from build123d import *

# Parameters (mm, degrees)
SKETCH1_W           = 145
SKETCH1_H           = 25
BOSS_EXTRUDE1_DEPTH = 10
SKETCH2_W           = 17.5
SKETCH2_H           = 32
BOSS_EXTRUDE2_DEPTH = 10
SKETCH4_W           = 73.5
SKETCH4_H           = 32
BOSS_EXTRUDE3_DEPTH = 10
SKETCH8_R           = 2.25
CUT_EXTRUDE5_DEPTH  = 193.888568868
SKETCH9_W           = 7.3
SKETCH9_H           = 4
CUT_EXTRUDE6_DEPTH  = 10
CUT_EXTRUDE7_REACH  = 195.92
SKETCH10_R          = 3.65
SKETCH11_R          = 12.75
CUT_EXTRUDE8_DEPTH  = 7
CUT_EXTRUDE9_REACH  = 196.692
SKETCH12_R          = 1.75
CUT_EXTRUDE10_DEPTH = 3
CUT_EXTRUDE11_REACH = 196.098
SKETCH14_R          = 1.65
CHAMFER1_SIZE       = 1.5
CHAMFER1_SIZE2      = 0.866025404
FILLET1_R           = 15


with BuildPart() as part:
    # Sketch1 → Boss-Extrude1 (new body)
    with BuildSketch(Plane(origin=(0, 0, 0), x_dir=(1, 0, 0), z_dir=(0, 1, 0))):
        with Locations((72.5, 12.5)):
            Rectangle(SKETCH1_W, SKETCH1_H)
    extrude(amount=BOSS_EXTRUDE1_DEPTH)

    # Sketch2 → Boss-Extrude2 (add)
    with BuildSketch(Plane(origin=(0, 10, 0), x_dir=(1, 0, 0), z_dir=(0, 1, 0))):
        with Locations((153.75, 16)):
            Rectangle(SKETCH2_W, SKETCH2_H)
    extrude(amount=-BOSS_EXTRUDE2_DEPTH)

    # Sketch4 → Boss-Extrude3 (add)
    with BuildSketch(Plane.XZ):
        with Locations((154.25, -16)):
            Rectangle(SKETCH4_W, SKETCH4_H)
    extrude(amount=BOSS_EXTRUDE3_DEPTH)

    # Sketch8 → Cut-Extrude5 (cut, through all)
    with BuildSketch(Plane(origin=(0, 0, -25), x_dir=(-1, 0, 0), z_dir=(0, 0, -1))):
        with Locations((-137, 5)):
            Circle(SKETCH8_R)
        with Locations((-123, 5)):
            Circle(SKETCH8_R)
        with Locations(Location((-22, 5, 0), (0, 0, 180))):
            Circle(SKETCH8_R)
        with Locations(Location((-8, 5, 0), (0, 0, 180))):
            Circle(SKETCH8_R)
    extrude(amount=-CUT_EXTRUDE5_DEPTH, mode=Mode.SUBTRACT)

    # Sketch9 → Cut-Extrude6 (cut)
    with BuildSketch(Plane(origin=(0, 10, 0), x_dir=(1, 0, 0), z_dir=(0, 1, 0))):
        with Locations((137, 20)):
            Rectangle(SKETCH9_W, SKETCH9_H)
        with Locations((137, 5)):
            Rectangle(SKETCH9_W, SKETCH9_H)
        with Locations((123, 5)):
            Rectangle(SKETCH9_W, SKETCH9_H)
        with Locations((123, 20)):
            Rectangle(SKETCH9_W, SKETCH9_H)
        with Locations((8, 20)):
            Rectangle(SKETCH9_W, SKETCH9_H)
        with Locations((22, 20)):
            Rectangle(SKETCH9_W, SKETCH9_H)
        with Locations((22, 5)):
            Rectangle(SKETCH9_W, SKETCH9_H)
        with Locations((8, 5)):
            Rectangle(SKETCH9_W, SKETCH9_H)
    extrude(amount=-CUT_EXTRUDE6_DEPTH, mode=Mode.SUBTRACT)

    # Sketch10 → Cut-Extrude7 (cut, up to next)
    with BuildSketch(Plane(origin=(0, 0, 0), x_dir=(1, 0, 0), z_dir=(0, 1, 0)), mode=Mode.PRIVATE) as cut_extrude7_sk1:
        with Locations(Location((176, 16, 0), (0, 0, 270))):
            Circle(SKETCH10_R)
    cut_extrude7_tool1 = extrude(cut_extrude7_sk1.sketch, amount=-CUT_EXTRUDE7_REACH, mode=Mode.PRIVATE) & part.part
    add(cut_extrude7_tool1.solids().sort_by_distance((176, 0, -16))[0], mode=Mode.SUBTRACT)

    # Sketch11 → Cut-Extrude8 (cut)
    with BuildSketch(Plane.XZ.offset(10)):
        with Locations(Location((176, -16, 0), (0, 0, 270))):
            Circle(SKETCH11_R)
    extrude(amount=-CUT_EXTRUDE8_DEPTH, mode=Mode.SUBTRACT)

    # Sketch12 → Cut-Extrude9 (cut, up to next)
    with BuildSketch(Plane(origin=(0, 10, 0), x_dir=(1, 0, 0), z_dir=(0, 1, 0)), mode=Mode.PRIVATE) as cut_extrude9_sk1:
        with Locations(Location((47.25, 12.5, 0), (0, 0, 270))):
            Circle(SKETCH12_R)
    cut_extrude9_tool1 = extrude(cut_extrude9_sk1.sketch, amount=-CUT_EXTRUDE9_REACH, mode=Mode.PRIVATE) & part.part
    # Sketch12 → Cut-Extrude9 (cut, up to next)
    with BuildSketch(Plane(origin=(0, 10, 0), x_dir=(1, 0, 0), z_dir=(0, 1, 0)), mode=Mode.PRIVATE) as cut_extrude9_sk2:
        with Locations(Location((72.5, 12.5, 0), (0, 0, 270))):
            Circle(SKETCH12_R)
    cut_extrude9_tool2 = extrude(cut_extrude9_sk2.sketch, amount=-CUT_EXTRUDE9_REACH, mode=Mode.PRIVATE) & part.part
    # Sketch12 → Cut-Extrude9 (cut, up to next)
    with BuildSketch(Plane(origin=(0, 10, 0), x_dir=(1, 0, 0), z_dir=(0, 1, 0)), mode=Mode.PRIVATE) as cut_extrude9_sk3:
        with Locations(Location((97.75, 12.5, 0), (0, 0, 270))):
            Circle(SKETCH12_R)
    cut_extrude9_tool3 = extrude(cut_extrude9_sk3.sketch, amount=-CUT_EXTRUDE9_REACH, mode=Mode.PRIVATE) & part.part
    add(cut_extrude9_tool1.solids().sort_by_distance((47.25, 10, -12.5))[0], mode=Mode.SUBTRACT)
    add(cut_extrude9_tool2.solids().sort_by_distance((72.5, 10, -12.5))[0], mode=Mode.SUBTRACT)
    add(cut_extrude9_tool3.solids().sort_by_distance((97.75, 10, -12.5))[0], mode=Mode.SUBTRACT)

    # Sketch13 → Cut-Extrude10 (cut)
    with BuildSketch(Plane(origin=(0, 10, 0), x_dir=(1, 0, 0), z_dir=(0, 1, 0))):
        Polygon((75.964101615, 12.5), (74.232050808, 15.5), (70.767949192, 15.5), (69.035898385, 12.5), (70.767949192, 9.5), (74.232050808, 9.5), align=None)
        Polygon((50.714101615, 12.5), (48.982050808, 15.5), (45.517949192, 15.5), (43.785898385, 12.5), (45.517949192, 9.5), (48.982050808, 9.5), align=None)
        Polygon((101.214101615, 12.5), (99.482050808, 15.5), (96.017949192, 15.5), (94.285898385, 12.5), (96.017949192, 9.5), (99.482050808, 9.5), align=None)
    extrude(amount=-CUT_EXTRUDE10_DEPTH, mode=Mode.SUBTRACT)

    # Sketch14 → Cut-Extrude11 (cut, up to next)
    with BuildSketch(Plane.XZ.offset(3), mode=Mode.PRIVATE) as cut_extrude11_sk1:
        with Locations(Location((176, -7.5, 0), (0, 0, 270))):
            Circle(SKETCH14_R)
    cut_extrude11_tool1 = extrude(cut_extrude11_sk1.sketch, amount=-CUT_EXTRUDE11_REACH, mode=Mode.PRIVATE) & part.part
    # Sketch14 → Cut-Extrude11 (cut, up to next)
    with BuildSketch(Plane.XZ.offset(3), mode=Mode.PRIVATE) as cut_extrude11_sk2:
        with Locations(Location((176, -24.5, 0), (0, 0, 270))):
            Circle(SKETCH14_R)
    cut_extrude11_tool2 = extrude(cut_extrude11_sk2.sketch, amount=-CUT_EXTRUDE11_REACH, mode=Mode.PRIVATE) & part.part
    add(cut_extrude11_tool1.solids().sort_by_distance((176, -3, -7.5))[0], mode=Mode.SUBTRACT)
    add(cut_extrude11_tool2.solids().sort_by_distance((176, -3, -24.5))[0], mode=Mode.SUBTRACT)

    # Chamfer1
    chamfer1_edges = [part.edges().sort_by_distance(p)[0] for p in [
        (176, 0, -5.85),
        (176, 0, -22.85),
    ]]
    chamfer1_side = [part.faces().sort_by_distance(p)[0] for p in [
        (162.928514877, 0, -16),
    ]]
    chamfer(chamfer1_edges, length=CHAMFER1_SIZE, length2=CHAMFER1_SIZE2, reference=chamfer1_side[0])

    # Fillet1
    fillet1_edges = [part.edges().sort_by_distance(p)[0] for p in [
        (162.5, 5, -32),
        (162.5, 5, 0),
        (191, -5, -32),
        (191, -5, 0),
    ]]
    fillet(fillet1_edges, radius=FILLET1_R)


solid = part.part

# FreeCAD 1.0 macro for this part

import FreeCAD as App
import Part
import Sketcher
from FreeCAD import Vector
Q = App.Units.Quantity


def edges_at(feature, points):
    """Names of the edges that pass closest to the given points."""
    edges = feature.Shape.Edges
    near = lambda p: min(range(len(edges)), key=lambda i: edges[i].distToShape(Part.Vertex(*p))[0])
    return sorted({f"Edge{near(p) + 1}" for p in points})


def add_polygon(sketch, points):
    """Adds a closed chain of lines whose ends are joined by coincident constraints."""
    first, n = sketch.GeometryCount, len(points)
    for a, b in zip(points, points[1:] + points[:1]):
        sketch.addGeometry(Part.LineSegment(App.Vector(*a, 0), App.Vector(*b, 0)), False)
    for i in range(n):
        sketch.addConstraint(Sketcher.Constraint("Coincident", first + i, 2, first + (i + 1) % n, 1))

doc = App.newDocument("Part")
body = doc.addObject("PartDesign::Body", "Body")

sketch1 = body.newObject("Sketcher::SketchObject", "Sketch")
sketch1.AttachmentSupport = (doc.getObject("XZ_Plane"), [""])
sketch1.MapMode = "FlatFace"
add_polygon(sketch1, [(0, -25), (0, 0), (145, 0), (145, -25)])
sketch1.addConstraint([
    Sketcher.Constraint("Vertical", 0),
    Sketcher.Constraint("Horizontal", 1),
    Sketcher.Constraint("Vertical", 2),
    Sketcher.Constraint("Horizontal", 3),
    Sketcher.Constraint("Coincident", 0, 2, -1, 1),
    Sketcher.Constraint("DistanceX", 1, 1, 1, 2, Q("145 mm")),
    Sketcher.Constraint("DistanceY", 0, 1, 0, 2, Q("25 mm")),
])
pad1 = body.newObject("PartDesign::Pad", "Pad")
pad1.Profile = sketch1
pad1.Length = 10
pad1.Reversed = True

sketch2 = body.newObject("Sketcher::SketchObject", "Sketch001")
sketch2.AttachmentSupport = (doc.getObject("XZ_Plane"), [""])
sketch2.MapMode = "FlatFace"
sketch2.AttachmentOffset = App.Placement(Vector(0, 0, -10), App.Rotation())
add_polygon(sketch2, [(145, -32), (145, 0), (162, 0), (162, -32)])
sketch2.addConstraint([
    Sketcher.Constraint("Vertical", 0),
    Sketcher.Constraint("Horizontal", 1),
    Sketcher.Constraint("Vertical", 2),
    Sketcher.Constraint("Horizontal", 3),
    Sketcher.Constraint("PointOnObject", 0, 2, -1),
    Sketcher.Constraint("DistanceY", 0, 1, 0, 2, Q("32 mm")),
    Sketcher.Constraint("DistanceX", 1, 1, 1, 2, Q("17.5 mm")),
    Sketcher.Constraint("DistanceX", -1, 1, 0, 2, Q("145 mm")),
])
pad2 = body.newObject("PartDesign::Pad", "Pad001")
pad2.Profile = sketch2
pad2.Length = 10

sketch3 = body.newObject("Sketcher::SketchObject", "Sketch002")
sketch3.AttachmentSupport = (doc.getObject("XZ_Plane"), [""])
sketch3.MapMode = "FlatFace"
add_polygon(sketch3, [(118, 0), (118, -32), (191, -32), (191, 0)])
sketch3.addConstraint([
    Sketcher.Constraint("Vertical", 0),
    Sketcher.Constraint("Horizontal", 1),
    Sketcher.Constraint("Vertical", 2),
    Sketcher.Constraint("Horizontal", 3),
    Sketcher.Constraint("PointOnObject", 2, 2, -1),
    Sketcher.Constraint("DistanceY", 0, 2, 0, 1, Q("32 mm")),
    Sketcher.Constraint("DistanceX", 1, 1, 1, 2, Q("73.5 mm")),
    Sketcher.Constraint("DistanceX", -1, 1, 1, 2, Q("191 mm")),
])
pad3 = body.newObject("PartDesign::Pad", "Pad002")
pad3.Profile = sketch3
pad3.Length = 10

sketch4 = body.newObject("Sketcher::SketchObject", "Sketch003")
sketch4.AttachmentSupport = (doc.getObject("XY_Plane"), [""])
sketch4.MapMode = "FlatFace"
sketch4.AttachmentOffset = App.Placement(Vector(0, 0, -25), App.Rotation())
sketch4.addGeometry([
    Part.Circle(Vector(137, 5, 0), Vector(0, 0, 1), 2.2),
    Part.Circle(Vector(123, 5, 0), Vector(0, 0, 1), 2.2),
    Part.Circle(Vector(22, 5, 0), Vector(0, 0, 1), 2.2),
    Part.Circle(Vector(8, 5, 0), Vector(0, 0, 1), 2.2),
], False)
sketch4.addConstraint([
    Sketcher.Constraint("Equal", 0, 1),
    Sketcher.Constraint("Equal", 1, 2),
    Sketcher.Constraint("Equal", 2, 3),
    Sketcher.Constraint("Horizontal", 0, 3, 1, 3),
    Sketcher.Constraint("Horizontal", 1, 3, 2, 3),
    Sketcher.Constraint("Horizontal", 2, 3, 3, 3),
    Sketcher.Constraint("Diameter", 0, Q("4.5 mm")),
    Sketcher.Constraint("DistanceX", -1, 1, 0, 3, Q("137 mm")),
    Sketcher.Constraint("DistanceY", -1, 1, 0, 3, Q("5 mm")),
    Sketcher.Constraint("DistanceX", -1, 1, 1, 3, Q("123 mm")),
    Sketcher.Constraint("DistanceX", -1, 1, 2, 3, Q("22 mm")),
    Sketcher.Constraint("DistanceX", -1, 1, 3, 3, Q("8 mm")),
])
pocket1 = body.newObject("PartDesign::Pocket", "Pocket")
pocket1.Profile = sketch4
pocket1.Type = "ThroughAll"
pocket1.Reversed = True

sketch5 = body.newObject("Sketcher::SketchObject", "Sketch004")
sketch5.AttachmentSupport = (doc.getObject("XZ_Plane"), [""])
sketch5.MapMode = "FlatFace"
sketch5.AttachmentOffset = App.Placement(Vector(0, 0, -10), App.Rotation())
add_polygon(sketch5, [(133.3, -22), (133.3, -18), (140.7, -18), (140.7, -22)])
add_polygon(sketch5, [(133.3, -7), (133.3, -3), (140.7, -3), (140.7, -7)])
add_polygon(sketch5, [(119.3, -7), (119.3, -3), (126.7, -3), (126.7, -7)])
add_polygon(sketch5, [(119.3, -22), (119.3, -18), (126.7, -18), (126.7, -22)])
add_polygon(sketch5, [(4.3, -22), (4.3, -18), (11.7, -18), (11.7, -22)])
add_polygon(sketch5, [(18.4, -22), (18.4, -18), (25.6, -18), (25.6, -22)])
add_polygon(sketch5, [(18.4, -7), (18.4, -3), (25.6, -3), (25.6, -7)])
add_polygon(sketch5, [(4.3, -7), (4.3, -3), (11.7, -3), (11.7, -7)])
sketch5.addConstraint([
    Sketcher.Constraint("Vertical", 0),
    Sketcher.Constraint("Horizontal", 1),
    Sketcher.Constraint("Vertical", 2),
    Sketcher.Constraint("Horizontal", 3),
    Sketcher.Constraint("Vertical", 4),
    Sketcher.Constraint("Horizontal", 5),
    Sketcher.Constraint("Vertical", 6),
    Sketcher.Constraint("Horizontal", 7),
    Sketcher.Constraint("Vertical", 8),
    Sketcher.Constraint("Horizontal", 9),
    Sketcher.Constraint("Vertical", 10),
    Sketcher.Constraint("Horizontal", 11),
    Sketcher.Constraint("Vertical", 12),
    Sketcher.Constraint("Horizontal", 13),
    Sketcher.Constraint("Vertical", 14),
    Sketcher.Constraint("Horizontal", 15),
    Sketcher.Constraint("Vertical", 16),
    Sketcher.Constraint("Horizontal", 17),
    Sketcher.Constraint("Vertical", 18),
    Sketcher.Constraint("Horizontal", 19),
    Sketcher.Constraint("Vertical", 20),
    Sketcher.Constraint("Horizontal", 21),
    Sketcher.Constraint("Vertical", 22),
    Sketcher.Constraint("Horizontal", 23),
    Sketcher.Constraint("Vertical", 24),
    Sketcher.Constraint("Horizontal", 25),
    Sketcher.Constraint("Vertical", 26),
    Sketcher.Constraint("Horizontal", 27),
    Sketcher.Constraint("Vertical", 28),
    Sketcher.Constraint("Horizontal", 29),
    Sketcher.Constraint("Vertical", 30),
    Sketcher.Constraint("Horizontal", 31),
    Sketcher.Constraint("Horizontal", 5, 2, 8, 2),
    Sketcher.Constraint("Horizontal", 7, 2, 10, 2),
    Sketcher.Constraint("Horizontal", 1, 2, 12, 2),
    Sketcher.Constraint("Horizontal", 3, 2, 14, 2),
    Sketcher.Constraint("Horizontal", 13, 2, 16, 2),
    Sketcher.Constraint("Horizontal", 15, 2, 18, 2),
    Sketcher.Constraint("Horizontal", 17, 2, 20, 2),
    Sketcher.Constraint("Horizontal", 19, 2, 22, 2),
    Sketcher.Constraint("Horizontal", 9, 2, 24, 2),
    Sketcher.Constraint("Horizontal", 11, 2, 26, 2),
    Sketcher.Constraint("Horizontal", 25, 2, 28, 2),
    Sketcher.Constraint("Horizontal", 27, 2, 30, 2),
    Sketcher.Constraint("Vertical", 3, 2, 4, 2),
    Sketcher.Constraint("Vertical", 2, 2, 5, 2),
    Sketcher.Constraint("Vertical", 11, 2, 12, 2),
    Sketcher.Constraint("Vertical", 10, 2, 13, 2),
    Sketcher.Constraint("Vertical", 23, 2, 24, 2),
    Sketcher.Constraint("Vertical", 22, 2, 25, 2),
    Sketcher.Constraint("Vertical", 19, 2, 28, 2),
    Sketcher.Constraint("Vertical", 18, 2, 29, 2),
    Sketcher.Constraint("Equal", 7, 9),
    Sketcher.Constraint("Equal", 15, 17),
    Sketcher.Constraint("Equal", 19, 21),
    Sketcher.Constraint("Equal", 2, 4),
    Sketcher.Constraint("DistanceY", 0, 1, 0, 2, Q("4 mm")),
    Sketcher.Constraint("DistanceX", 1, 1, 1, 2, Q("7.3 mm")),
    Sketcher.Constraint("DistanceY", 0, 2, -1, 1, Q("18 mm")),
    Sketcher.Constraint("DistanceY", 4, 2, -1, 1, Q("3 mm")),
    Sketcher.Constraint("DistanceX", 8, 2, 4, 2, Q("14 mm")),
    Sketcher.Constraint("DistanceX", 16, 2, 12, 2, Q("115 mm")),
    Sketcher.Constraint("DistanceX", 16, 2, 20, 2, Q("14 mm")),
    Sketcher.Constraint("DistanceX", -1, 1, 0, 2, Q("133.35 mm")),
])
pocket2 = body.newObject("PartDesign::Pocket", "Pocket001")
pocket2.Profile = sketch5
pocket2.Length = 10
pocket2.Reversed = True

sketch6 = body.newObject("Sketcher::SketchObject", "Sketch005")
sketch6.AttachmentSupport = (doc.getObject("XZ_Plane"), [""])
sketch6.MapMode = "FlatFace"
sketch6.addGeometry(Part.Circle(Vector(176, -16, 0), Vector(0, 0, 1), 3.6), False)
sketch6.addConstraint([
    Sketcher.Constraint("Diameter", 0, Q("7.3 mm")),
    Sketcher.Constraint("DistanceX", -1, 1, 0, 3, Q("176 mm")),
    Sketcher.Constraint("DistanceY", 0, 3, -1, 1, Q("16 mm")),
])
pocket3 = body.newObject("PartDesign::Pocket", "Pocket002")
pocket3.Profile = sketch6
pocket3.Type = "UpToFirst"
pocket3.Reversed = True

sketch7 = body.newObject("Sketcher::SketchObject", "Sketch006")
sketch7.AttachmentSupport = (doc.getObject("XZ_Plane"), [""])
sketch7.MapMode = "FlatFace"
sketch7.AttachmentOffset = App.Placement(Vector(0, 0, 10), App.Rotation())
sketch7.addGeometry(Part.Circle(Vector(176, -16, 0), Vector(0, 0, 1), 13), False)
sketch7.addConstraint([
    Sketcher.Constraint("Diameter", 0, Q("25.5 mm")),
    Sketcher.Constraint("DistanceX", -1, 1, 0, 3, Q("176 mm")),
    Sketcher.Constraint("DistanceY", 0, 3, -1, 1, Q("16 mm")),
])
pocket4 = body.newObject("PartDesign::Pocket", "Pocket003")
pocket4.Profile = sketch7
pocket4.Length = 7

sketch8 = body.newObject("Sketcher::SketchObject", "Sketch007")
sketch8.AttachmentSupport = (doc.getObject("XZ_Plane"), [""])
sketch8.MapMode = "FlatFace"
sketch8.AttachmentOffset = App.Placement(Vector(0, 0, -10), App.Rotation())
sketch8.addGeometry(Part.Circle(Vector(47.2, -12.5, 0), Vector(0, 0, 1), 1.8), False)
sketch8.addConstraint([
    Sketcher.Constraint("Diameter", 0, Q("3.5 mm")),
    Sketcher.Constraint("DistanceY", 0, 3, -1, 1, Q("12.5 mm")),
    Sketcher.Constraint("DistanceX", -1, 1, 0, 3, Q("47.25 mm")),
])
pocket5 = body.newObject("PartDesign::Pocket", "Pocket004")
pocket5.Profile = sketch8
pocket5.Type = "UpToFirst"
pocket5.Reversed = True

sketch9 = body.newObject("Sketcher::SketchObject", "Sketch008")
sketch9.AttachmentSupport = (doc.getObject("XZ_Plane"), [""])
sketch9.MapMode = "FlatFace"
sketch9.AttachmentOffset = App.Placement(Vector(0, 0, -10), App.Rotation())
sketch9.addGeometry(Part.Circle(Vector(72.5, -12.5, 0), Vector(0, 0, 1), 1.8), False)
sketch9.addConstraint([
    Sketcher.Constraint("Diameter", 0, Q("3.5 mm")),
    Sketcher.Constraint("DistanceX", -1, 1, 0, 3, Q("72.5 mm")),
    Sketcher.Constraint("DistanceY", 0, 3, -1, 1, Q("12.5 mm")),
])
pocket6 = body.newObject("PartDesign::Pocket", "Pocket005")
pocket6.Profile = sketch9
pocket6.Type = "UpToFirst"
pocket6.Reversed = True

sketch10 = body.newObject("Sketcher::SketchObject", "Sketch009")
sketch10.AttachmentSupport = (doc.getObject("XZ_Plane"), [""])
sketch10.MapMode = "FlatFace"
sketch10.AttachmentOffset = App.Placement(Vector(0, 0, -10), App.Rotation())
sketch10.addGeometry(Part.Circle(Vector(97.8, -12.5, 0), Vector(0, 0, 1), 1.8), False)
sketch10.addConstraint([
    Sketcher.Constraint("Diameter", 0, Q("3.5 mm")),
    Sketcher.Constraint("DistanceY", 0, 3, -1, 1, Q("12.5 mm")),
    Sketcher.Constraint("DistanceX", -1, 1, 0, 3, Q("97.75 mm")),
])
pocket7 = body.newObject("PartDesign::Pocket", "Pocket006")
pocket7.Profile = sketch10
pocket7.Type = "UpToFirst"
pocket7.Reversed = True

sketch11 = body.newObject("Sketcher::SketchObject", "Sketch010")
sketch11.AttachmentSupport = (doc.getObject("XZ_Plane"), [""])
sketch11.MapMode = "FlatFace"
sketch11.AttachmentOffset = App.Placement(Vector(0, 0, -10), App.Rotation())
add_polygon(sketch11, [(76, -12.5), (74.2, -15.5), (70.8, -15.5), (69, -12.5), (70.8, -9.5), (74.2, -9.5)])
add_polygon(sketch11, [(50.7, -12.5), (49, -15.5), (45.5, -15.5), (43.8, -12.5), (45.5, -9.5), (49, -9.5)])
add_polygon(sketch11, [(101.2, -12.5), (99.5, -15.5), (96, -15.5), (94.3, -12.5), (96, -9.5), (99.5, -9.5)])
sketch11.addConstraint([
    Sketcher.Constraint("Horizontal", 1),
    Sketcher.Constraint("Horizontal", 4),
    Sketcher.Constraint("Horizontal", 7),
    Sketcher.Constraint("Horizontal", 10),
    Sketcher.Constraint("Horizontal", 13),
    Sketcher.Constraint("Horizontal", 16),
    Sketcher.Constraint("Parallel", 0, 3),
    Sketcher.Constraint("Parallel", 2, 5),
    Sketcher.Constraint("Parallel", 3, 6),
    Sketcher.Constraint("Parallel", 5, 8),
    Sketcher.Constraint("Parallel", 6, 9),
    Sketcher.Constraint("Parallel", 8, 11),
    Sketcher.Constraint("Parallel", 9, 12),
    Sketcher.Constraint("Parallel", 11, 14),
    Sketcher.Constraint("Parallel", 12, 15),
    Sketcher.Constraint("Parallel", 14, 17),
    Sketcher.Constraint("Horizontal", 2, 2, 5, 2),
    Sketcher.Constraint("Horizontal", 1, 2, 6, 2),
    Sketcher.Constraint("Horizontal", 5, 2, 8, 2),
    Sketcher.Constraint("Horizontal", 4, 2, 9, 2),
    Sketcher.Constraint("Horizontal", 8, 2, 11, 2),
    Sketcher.Constraint("Horizontal", 7, 2, 12, 2),
    Sketcher.Constraint("Horizontal", 11, 2, 14, 2),
    Sketcher.Constraint("Horizontal", 10, 2, 15, 2),
    Sketcher.Constraint("Horizontal", 14, 2, 17, 2),
    Sketcher.Constraint("Vertical", 1, 2, 3, 2),
    Sketcher.Constraint("Vertical", 0, 2, 4, 2),
    Sketcher.Constraint("Equal", 4, 7),
    Sketcher.Constraint("Equal", 10, 13),
    Sketcher.Constraint("Angle", 0, Q("-120 deg")),
    Sketcher.Constraint("DistanceY", 1, 2, 2, 2, Q("3 mm")),
    Sketcher.Constraint("DistanceY", 0, 2, -1, 1, Q("15.5 mm")),
    Sketcher.Constraint("DistanceX", 6, 2, 0, 2, Q("25.25 mm")),
    Sketcher.Constraint("DistanceX", 0, 2, 12, 2, Q("25.25 mm")),
    Sketcher.Constraint("DistanceX", 1, 2, 1, 1, Q("3.464102 mm")),
    Sketcher.Constraint("DistanceX", -1, 1, 2, 2, Q("69.035898 mm")),
])
pocket8 = body.newObject("PartDesign::Pocket", "Pocket007")
pocket8.Profile = sketch11
pocket8.Length = 3
pocket8.Reversed = True

sketch12 = body.newObject("Sketcher::SketchObject", "Sketch011")
sketch12.AttachmentSupport = (doc.getObject("XZ_Plane"), [""])
sketch12.MapMode = "FlatFace"
sketch12.AttachmentOffset = App.Placement(Vector(0, 0, 3), App.Rotation())
sketch12.addGeometry(Part.Circle(Vector(176, -7.5, 0), Vector(0, 0, 1), 1.6), False)
sketch12.addConstraint([
    Sketcher.Constraint("Diameter", 0, Q("3.3 mm")),
    Sketcher.Constraint("DistanceX", -1, 1, 0, 3, Q("176 mm")),
    Sketcher.Constraint("DistanceY", 0, 3, -1, 1, Q("7.5 mm")),
])
pocket9 = body.newObject("PartDesign::Pocket", "Pocket008")
pocket9.Profile = sketch12
pocket9.Type = "UpToFirst"

sketch13 = body.newObject("Sketcher::SketchObject", "Sketch012")
sketch13.AttachmentSupport = (doc.getObject("XZ_Plane"), [""])
sketch13.MapMode = "FlatFace"
sketch13.AttachmentOffset = App.Placement(Vector(0, 0, 3), App.Rotation())
sketch13.addGeometry(Part.Circle(Vector(176, -24.5, 0), Vector(0, 0, 1), 1.6), False)
sketch13.addConstraint([
    Sketcher.Constraint("Diameter", 0, Q("3.3 mm")),
    Sketcher.Constraint("DistanceX", -1, 1, 0, 3, Q("176 mm")),
    Sketcher.Constraint("DistanceY", 0, 3, -1, 1, Q("24.5 mm")),
])
pocket10 = body.newObject("PartDesign::Pocket", "Pocket009")
pocket10.Profile = sketch13
pocket10.Type = "UpToFirst"
doc.recompute()

chamfer = body.newObject("PartDesign::Chamfer", "Chamfer")
chamfer.Base = (pocket10, edges_at(pocket10, [(176, 0, -5.85), (176, 0, -22.85)]))
chamfer.ChamferType = "Two distances"
chamfer.Size = 1.5
chamfer.Size2 = 0.866025
doc.recompute()

fillet = body.newObject("PartDesign::Fillet", "Fillet")
fillet.Base = (chamfer, edges_at(chamfer, [
    (162.5, 5, -32),
    (162.5, 5, 0),
    (191, -5, -32),
    (191, -5, 0),
]))
fillet.Radius = 15

doc.recompute()
